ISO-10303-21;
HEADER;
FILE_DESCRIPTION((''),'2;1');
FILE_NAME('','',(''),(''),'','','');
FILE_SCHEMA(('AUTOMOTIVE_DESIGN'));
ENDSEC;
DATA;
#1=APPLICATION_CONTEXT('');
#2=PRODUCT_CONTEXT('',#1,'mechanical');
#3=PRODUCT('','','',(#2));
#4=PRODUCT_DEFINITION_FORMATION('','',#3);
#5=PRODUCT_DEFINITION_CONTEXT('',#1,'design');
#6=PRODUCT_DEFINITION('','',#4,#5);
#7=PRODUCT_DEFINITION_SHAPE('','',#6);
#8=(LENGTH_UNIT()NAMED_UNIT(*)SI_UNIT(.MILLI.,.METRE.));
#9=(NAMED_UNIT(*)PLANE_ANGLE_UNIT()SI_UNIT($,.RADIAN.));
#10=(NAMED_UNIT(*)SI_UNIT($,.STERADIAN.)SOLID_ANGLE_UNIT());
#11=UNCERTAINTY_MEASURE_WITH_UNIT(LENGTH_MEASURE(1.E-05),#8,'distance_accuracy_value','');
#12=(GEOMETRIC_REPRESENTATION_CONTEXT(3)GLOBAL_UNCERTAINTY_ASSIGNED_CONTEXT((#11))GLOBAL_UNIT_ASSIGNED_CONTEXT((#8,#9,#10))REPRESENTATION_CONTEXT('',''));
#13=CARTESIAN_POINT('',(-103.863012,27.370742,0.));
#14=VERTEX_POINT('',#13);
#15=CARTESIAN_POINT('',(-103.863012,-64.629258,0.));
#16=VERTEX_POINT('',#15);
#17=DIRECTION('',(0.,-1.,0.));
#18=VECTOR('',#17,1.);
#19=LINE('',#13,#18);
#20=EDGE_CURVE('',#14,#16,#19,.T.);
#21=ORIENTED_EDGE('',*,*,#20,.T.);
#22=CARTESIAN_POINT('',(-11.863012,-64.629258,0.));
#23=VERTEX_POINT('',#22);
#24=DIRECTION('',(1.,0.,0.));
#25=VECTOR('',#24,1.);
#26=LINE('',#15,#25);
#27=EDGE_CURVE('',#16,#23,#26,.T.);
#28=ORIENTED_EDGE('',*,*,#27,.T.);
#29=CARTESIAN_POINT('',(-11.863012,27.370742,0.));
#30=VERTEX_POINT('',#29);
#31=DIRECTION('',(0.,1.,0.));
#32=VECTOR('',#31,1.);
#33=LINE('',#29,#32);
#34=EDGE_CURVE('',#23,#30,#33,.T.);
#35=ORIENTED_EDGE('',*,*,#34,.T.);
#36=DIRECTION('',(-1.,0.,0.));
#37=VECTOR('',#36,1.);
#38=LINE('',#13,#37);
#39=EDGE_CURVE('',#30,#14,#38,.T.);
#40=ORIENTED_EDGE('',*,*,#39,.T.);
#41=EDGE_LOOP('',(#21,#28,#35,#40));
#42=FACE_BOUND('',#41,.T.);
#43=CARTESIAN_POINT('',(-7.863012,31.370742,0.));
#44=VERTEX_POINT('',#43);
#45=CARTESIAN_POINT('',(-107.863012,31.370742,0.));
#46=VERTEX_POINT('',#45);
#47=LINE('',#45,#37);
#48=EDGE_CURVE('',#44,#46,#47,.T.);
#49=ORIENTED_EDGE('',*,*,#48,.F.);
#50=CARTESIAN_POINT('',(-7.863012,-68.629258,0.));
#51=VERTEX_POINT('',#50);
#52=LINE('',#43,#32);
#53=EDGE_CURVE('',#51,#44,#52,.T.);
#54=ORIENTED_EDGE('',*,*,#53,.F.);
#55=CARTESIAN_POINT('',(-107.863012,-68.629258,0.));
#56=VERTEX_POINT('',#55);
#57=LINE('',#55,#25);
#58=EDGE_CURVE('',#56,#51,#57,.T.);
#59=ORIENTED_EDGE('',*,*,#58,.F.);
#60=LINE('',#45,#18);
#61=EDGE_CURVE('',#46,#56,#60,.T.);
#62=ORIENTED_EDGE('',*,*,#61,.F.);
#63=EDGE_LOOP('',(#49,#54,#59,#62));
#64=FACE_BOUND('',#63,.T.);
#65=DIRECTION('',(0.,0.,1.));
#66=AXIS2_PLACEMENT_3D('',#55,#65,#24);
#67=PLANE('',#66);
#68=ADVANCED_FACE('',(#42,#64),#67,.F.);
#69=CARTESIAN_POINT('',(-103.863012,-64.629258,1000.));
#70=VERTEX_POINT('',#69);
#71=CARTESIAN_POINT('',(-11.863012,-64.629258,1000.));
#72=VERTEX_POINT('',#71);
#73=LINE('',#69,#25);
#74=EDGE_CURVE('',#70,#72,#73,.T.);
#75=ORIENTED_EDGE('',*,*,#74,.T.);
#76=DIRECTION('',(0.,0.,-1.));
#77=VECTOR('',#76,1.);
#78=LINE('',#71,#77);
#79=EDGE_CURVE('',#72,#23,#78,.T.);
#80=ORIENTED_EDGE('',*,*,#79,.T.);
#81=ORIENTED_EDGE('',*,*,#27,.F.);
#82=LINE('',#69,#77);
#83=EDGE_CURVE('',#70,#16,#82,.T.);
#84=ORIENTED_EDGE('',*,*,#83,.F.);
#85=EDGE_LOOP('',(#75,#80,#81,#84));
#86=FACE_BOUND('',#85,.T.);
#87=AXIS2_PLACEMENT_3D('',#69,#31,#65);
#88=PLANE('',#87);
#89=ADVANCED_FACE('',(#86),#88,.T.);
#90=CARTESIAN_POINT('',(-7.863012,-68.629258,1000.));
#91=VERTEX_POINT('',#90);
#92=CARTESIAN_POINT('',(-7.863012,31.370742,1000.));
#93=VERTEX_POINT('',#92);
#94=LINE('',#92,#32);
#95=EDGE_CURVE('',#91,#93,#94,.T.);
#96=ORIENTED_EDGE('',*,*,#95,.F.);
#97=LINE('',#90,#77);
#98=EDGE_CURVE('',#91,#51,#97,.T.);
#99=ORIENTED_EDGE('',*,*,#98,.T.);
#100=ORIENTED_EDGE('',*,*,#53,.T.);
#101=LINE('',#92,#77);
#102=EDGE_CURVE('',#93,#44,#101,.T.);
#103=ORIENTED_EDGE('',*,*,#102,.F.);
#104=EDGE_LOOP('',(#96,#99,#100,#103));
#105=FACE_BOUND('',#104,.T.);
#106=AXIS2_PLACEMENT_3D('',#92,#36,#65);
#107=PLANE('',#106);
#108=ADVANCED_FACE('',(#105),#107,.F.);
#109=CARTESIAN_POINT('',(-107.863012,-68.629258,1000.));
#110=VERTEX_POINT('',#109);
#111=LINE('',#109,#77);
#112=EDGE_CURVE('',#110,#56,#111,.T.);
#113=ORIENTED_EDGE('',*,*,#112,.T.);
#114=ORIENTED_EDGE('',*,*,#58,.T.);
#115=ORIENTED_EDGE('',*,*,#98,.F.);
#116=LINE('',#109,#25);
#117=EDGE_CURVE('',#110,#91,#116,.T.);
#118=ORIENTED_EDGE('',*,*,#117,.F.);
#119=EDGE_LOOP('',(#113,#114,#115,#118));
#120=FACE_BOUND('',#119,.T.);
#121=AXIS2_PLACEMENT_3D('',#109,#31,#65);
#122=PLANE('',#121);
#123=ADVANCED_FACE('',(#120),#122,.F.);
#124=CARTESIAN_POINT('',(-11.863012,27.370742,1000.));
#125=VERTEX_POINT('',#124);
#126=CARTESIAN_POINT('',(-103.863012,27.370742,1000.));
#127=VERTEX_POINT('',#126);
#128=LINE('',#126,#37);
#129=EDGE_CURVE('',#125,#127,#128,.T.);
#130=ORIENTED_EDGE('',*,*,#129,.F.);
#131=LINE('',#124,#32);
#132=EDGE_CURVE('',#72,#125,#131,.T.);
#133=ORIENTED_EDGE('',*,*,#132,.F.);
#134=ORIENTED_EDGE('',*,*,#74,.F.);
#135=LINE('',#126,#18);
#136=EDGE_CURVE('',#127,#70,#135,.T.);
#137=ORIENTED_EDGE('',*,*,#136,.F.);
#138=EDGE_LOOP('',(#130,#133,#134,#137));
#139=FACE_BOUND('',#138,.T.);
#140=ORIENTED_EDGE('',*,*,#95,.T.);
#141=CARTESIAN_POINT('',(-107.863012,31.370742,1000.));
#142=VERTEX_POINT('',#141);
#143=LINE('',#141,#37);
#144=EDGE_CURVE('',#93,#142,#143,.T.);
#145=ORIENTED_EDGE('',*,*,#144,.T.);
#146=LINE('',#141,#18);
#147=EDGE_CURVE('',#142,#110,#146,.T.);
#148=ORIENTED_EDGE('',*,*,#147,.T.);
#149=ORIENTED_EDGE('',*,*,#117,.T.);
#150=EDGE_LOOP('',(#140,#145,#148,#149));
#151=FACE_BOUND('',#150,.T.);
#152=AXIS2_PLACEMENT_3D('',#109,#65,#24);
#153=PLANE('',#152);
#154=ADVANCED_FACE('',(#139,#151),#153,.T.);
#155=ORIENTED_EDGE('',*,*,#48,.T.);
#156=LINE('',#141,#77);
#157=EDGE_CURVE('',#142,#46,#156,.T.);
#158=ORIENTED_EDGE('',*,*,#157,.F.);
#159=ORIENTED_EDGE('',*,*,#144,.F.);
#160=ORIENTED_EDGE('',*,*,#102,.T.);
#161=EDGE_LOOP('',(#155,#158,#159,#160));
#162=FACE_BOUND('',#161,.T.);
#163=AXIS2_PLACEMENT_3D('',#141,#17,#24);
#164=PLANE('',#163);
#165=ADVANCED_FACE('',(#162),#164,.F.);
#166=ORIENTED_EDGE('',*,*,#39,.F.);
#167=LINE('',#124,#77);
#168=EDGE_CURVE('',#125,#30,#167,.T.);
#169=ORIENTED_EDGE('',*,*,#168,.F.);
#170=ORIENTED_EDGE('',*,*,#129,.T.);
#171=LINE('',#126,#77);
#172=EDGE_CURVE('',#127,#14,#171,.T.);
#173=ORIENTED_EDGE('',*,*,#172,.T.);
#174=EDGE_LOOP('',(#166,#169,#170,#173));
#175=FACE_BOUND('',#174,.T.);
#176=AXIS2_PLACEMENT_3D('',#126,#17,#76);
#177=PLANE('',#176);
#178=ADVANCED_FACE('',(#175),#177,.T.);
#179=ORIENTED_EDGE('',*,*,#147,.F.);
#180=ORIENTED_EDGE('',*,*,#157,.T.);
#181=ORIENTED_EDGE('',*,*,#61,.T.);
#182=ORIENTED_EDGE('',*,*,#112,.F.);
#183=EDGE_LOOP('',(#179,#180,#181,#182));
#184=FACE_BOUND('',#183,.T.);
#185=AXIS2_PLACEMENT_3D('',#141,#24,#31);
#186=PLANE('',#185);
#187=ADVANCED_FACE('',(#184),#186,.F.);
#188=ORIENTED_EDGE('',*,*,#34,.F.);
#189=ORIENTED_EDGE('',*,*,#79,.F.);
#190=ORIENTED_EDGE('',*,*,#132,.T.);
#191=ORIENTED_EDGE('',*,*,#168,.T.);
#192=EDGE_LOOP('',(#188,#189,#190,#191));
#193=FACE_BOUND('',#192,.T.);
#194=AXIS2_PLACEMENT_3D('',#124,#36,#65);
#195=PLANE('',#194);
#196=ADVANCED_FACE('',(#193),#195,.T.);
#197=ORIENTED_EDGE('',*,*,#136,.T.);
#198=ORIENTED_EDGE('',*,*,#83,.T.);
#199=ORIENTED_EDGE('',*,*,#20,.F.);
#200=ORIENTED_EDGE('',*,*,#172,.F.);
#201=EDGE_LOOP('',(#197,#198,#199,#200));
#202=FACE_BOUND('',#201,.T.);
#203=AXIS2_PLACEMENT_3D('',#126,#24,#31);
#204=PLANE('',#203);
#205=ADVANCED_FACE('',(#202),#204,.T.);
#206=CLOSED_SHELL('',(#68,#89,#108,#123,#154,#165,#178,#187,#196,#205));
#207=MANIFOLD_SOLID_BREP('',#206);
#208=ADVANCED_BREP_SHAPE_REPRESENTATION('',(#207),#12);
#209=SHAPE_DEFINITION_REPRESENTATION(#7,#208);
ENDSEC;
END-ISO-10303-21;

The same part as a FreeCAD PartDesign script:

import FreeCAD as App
import Part
import Sketcher

V = App.Vector
Q = App.Units.Quantity


def add_polygon(sketch, points):
    """Adds a closed chain of lines whose ends are joined by coincident constraints."""
    first, n = sketch.GeometryCount, len(points)
    for a, b in zip(points, points[1:] + points[:1]):
        sketch.addGeometry(Part.LineSegment(App.Vector(*a, 0), App.Vector(*b, 0)), False)
    for i in range(n):
        sketch.addConstraint(Sketcher.Constraint("Coincident", first + i, 2, first + (i + 1) % n, 1))

doc = App.newDocument("Part")
body = doc.addObject("PartDesign::Body", "Body")

# Sketch on XY plane
sketch1 = body.newObject("Sketcher::SketchObject", "Sketch")
sketch1.AttachmentSupport = (doc.getObject("XY_Plane"), [""])
sketch1.MapMode = "FlatFace"
add_polygon(sketch1, [(-107.863012, 31.370742), (-107.863012, -68.629258), (-7.863012, -68.629258), (-7.863012, 31.370742)])  # lines 0-3
add_polygon(sketch1, [(-11.863012, -64.629258), (-103.863012, -64.629258), (-103.863012, 27.370742), (-11.863012, 27.370742)])  # lines 4-7
sketch1.addConstraint([
    Sketcher.Constraint("Vertical", 0),
    Sketcher.Constraint("Horizontal", 1),
    Sketcher.Constraint("Vertical", 2),
    Sketcher.Constraint("Horizontal", 3),
    Sketcher.Constraint("Horizontal", 4),
    Sketcher.Constraint("Vertical", 5),
    Sketcher.Constraint("Horizontal", 6),
    Sketcher.Constraint("Vertical", 7),
    Sketcher.Constraint("Equal", 3, 0),
    Sketcher.Constraint("Equal", 6, 5),
    Sketcher.Constraint("DistanceX", 1, 1, 1, 2, Q("100 mm")),
    Sketcher.Constraint("DistanceX", 4, 2, 4, 1, Q("92 mm")),
    Sketcher.Constraint("DistanceX", 0, 2, 4, 2, Q("4 mm")),
    Sketcher.Constraint("DistanceY", 0, 2, 4, 2, Q("4 mm")),
    Sketcher.Constraint("DistanceY", 0, 2, -1, 1, Q("68.629258 mm")),
    Sketcher.Constraint("DistanceX", 0, 2, -1, 1, Q("107.863012 mm")),
])
pad1 = body.newObject("PartDesign::Pad", "Pad")
pad1.Profile = sketch1
pad1.Length = 1000

doc.recompute()
